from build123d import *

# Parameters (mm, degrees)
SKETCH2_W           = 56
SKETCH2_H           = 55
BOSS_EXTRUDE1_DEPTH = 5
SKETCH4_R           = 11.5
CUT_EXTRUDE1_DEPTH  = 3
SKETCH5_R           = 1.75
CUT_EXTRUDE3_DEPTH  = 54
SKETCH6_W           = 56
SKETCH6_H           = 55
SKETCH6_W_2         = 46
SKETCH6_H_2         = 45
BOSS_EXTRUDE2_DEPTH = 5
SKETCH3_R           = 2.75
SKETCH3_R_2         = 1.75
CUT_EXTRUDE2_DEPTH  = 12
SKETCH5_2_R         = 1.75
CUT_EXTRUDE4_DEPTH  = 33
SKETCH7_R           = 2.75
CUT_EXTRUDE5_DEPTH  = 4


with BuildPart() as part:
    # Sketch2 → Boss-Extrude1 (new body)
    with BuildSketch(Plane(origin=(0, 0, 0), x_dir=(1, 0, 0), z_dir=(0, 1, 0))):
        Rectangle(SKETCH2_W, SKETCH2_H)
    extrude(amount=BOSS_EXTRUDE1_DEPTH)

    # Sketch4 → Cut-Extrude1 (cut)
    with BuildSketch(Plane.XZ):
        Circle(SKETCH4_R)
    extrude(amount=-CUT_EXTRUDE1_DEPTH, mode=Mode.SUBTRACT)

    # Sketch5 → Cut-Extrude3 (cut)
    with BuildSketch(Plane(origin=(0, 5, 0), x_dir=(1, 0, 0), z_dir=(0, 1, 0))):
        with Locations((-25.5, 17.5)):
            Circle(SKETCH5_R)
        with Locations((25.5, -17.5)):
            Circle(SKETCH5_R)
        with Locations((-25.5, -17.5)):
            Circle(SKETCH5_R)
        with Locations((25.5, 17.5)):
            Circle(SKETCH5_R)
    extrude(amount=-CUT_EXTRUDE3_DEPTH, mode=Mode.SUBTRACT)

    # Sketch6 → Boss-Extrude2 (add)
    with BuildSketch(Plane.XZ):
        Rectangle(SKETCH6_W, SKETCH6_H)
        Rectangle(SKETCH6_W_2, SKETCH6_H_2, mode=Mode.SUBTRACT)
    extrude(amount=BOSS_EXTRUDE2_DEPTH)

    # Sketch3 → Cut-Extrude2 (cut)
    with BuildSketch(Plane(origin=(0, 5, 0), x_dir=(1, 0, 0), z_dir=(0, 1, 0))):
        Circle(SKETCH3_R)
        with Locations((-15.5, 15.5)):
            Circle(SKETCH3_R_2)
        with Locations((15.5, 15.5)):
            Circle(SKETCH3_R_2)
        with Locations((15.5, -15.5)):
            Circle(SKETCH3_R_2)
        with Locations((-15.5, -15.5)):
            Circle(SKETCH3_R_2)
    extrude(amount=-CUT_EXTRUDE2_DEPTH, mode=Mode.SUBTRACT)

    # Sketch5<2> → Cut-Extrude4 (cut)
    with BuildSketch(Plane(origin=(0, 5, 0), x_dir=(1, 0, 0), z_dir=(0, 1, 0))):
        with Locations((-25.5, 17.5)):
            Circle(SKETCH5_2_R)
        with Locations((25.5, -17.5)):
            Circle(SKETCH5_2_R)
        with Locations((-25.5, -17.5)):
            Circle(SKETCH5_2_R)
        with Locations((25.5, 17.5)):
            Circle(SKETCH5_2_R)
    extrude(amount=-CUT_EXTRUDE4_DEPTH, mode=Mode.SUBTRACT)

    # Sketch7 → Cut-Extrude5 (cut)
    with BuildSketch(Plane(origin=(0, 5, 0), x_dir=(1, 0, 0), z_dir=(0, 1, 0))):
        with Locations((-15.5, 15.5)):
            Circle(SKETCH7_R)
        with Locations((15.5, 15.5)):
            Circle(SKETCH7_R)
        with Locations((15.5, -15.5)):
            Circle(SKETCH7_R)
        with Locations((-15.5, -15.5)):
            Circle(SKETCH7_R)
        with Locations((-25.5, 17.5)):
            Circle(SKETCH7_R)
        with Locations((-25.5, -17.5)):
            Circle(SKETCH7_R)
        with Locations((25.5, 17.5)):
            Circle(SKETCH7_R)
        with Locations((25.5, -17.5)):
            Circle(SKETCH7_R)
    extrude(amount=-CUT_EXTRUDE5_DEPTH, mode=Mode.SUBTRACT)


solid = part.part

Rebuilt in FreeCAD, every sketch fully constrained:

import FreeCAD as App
import Part
import Sketcher
Q = App.Units.Quantity

doc = App.newDocument("Part")
body = doc.addObject("PartDesign::Body", "Body")

sketch1 = body.newObject("Sketcher::SketchObject", "Sketch")
sketch1.AttachmentSupport = (doc.getObject("XZ_Plane"), [""])
sketch1.MapMode = "FlatFace"
sketch1.addGeometry(Part.LineSegment(App.Vector(-28, -28, 0), App.Vector(-28, 28, 0)), False)
sketch1.addGeometry(Part.LineSegment(App.Vector(-28, 28, 0), App.Vector(28, 28, 0)), False)
sketch1.addGeometry(Part.LineSegment(App.Vector(28, 28, 0), App.Vector(28, -28, 0)), False)
sketch1.addGeometry(Part.LineSegment(App.Vector(28, -28, 0), App.Vector(-28, -28, 0)), False)
sketch1.addConstraint(Sketcher.Constraint("Coincident", 0, 2, 1, 1))
sketch1.addConstraint(Sketcher.Constraint("Coincident", 1, 2, 2, 1))
sketch1.addConstraint(Sketcher.Constraint("Coincident", 2, 2, 3, 1))
sketch1.addConstraint(Sketcher.Constraint("Coincident", 3, 2, 0, 1))
sketch1.addConstraint(Sketcher.Constraint("Vertical", 0))
sketch1.addConstraint(Sketcher.Constraint("Horizontal", 1))
sketch1.addConstraint(Sketcher.Constraint("Vertical", 2))
sketch1.addConstraint(Sketcher.Constraint("Horizontal", 3))
sketch1.addConstraint(Sketcher.Constraint("Symmetric", 0, 2, 2, 2, -1, 1))
sketch1.addConstraint(Sketcher.Constraint("DistanceX", 1, 1, 1, 2, Q("56 mm")))
sketch1.addConstraint(Sketcher.Constraint("DistanceY", 0, 1, 0, 2, Q("55 mm")))
pad1 = body.newObject("PartDesign::Pad", "Pad")
pad1.Profile = sketch1
pad1.Length = 5
pad1.Reversed = True

sketch2 = body.newObject("Sketcher::SketchObject", "Sketch001")
sketch2.AttachmentSupport = (doc.getObject("XZ_Plane"), [""])
sketch2.MapMode = "FlatFace"
sketch2.addGeometry(Part.Circle(App.Vector(0, 0, 0), App.Vector(0, 0, 1), 12), False)
sketch2.addConstraint(Sketcher.Constraint("Coincident", 0, 3, -1, 1))
sketch2.addConstraint(Sketcher.Constraint("Diameter", 0, Q("23 mm")))
pocket1 = body.newObject("PartDesign::Pocket", "Pocket")
pocket1.Profile = sketch2
pocket1.Length = 3

sketch3 = body.newObject("Sketcher::SketchObject", "Sketch002")
sketch3.AttachmentSupport = (doc.getObject("XZ_Plane"), [""])
sketch3.MapMode = "FlatFace"
sketch3.AttachmentOffset = App.Placement(App.Vector(0, 0, -5), App.Rotation())
sketch3.addGeometry(Part.Circle(App.Vector(-25.5, -17.5, 0), App.Vector(0, 0, 1), 1.8), False)
sketch3.addGeometry(Part.Circle(App.Vector(25.5, 17.5, 0), App.Vector(0, 0, 1), 1.8), False)
sketch3.addGeometry(Part.Circle(App.Vector(-25.5, 17.5, 0), App.Vector(0, 0, 1), 1.8), False)
sketch3.addGeometry(Part.Circle(App.Vector(25.5, -17.5, 0), App.Vector(0, 0, 1), 1.8), False)
sketch3.addConstraint(Sketcher.Constraint("Equal", 0, 1))
sketch3.addConstraint(Sketcher.Constraint("Equal", 1, 2))
sketch3.addConstraint(Sketcher.Constraint("Equal", 2, 3))
sketch3.addConstraint(Sketcher.Constraint("Symmetric", 0, 3, 1, 3, -1, 1))
sketch3.addConstraint(Sketcher.Constraint("Symmetric", 2, 3, 3, 3, -1, 1))
sketch3.addConstraint(Sketcher.Constraint("Symmetric", 1, 3, 2, 3, -2))
sketch3.addConstraint(Sketcher.Constraint("Diameter", 0, Q("3.5 mm")))
sketch3.addConstraint(Sketcher.Constraint("DistanceX", 0, 3, 1, 3, Q("51 mm")))
sketch3.addConstraint(Sketcher.Constraint("DistanceY", 0, 3, 1, 3, Q("35 mm")))
pocket2 = body.newObject("PartDesign::Pocket", "Pocket001")
pocket2.Profile = sketch3
pocket2.Length = 54
pocket2.Reversed = True

sketch4 = body.newObject("Sketcher::SketchObject", "Sketch003")
sketch4.AttachmentSupport = (doc.getObject("XZ_Plane"), [""])
sketch4.MapMode = "FlatFace"
sketch4.addGeometry(Part.LineSegment(App.Vector(-28, 28, 0), App.Vector(-28, -28, 0)), False)
sketch4.addGeometry(Part.LineSegment(App.Vector(-28, -28, 0), App.Vector(28, -28, 0)), False)
sketch4.addGeometry(Part.LineSegment(App.Vector(28, -28, 0), App.Vector(28, 28, 0)), False)
sketch4.addGeometry(Part.LineSegment(App.Vector(28, 28, 0), App.Vector(-28, 28, 0)), False)
sketch4.addGeometry(Part.LineSegment(App.Vector(23, -22, 0), App.Vector(-23, -22, 0)), False)
sketch4.addGeometry(Part.LineSegment(App.Vector(-23, -22, 0), App.Vector(-23, 22, 0)), False)
sketch4.addGeometry(Part.LineSegment(App.Vector(-23, 22, 0), App.Vector(23, 22, 0)), False)
sketch4.addGeometry(Part.LineSegment(App.Vector(23, 22, 0), App.Vector(23, -22, 0)), False)
sketch4.addConstraint(Sketcher.Constraint("Coincident", 0, 2, 1, 1))
sketch4.addConstraint(Sketcher.Constraint("Coincident", 1, 2, 2, 1))
sketch4.addConstraint(Sketcher.Constraint("Coincident", 2, 2, 3, 1))
sketch4.addConstraint(Sketcher.Constraint("Coincident", 3, 2, 0, 1))
sketch4.addConstraint(Sketcher.Constraint("Coincident", 4, 2, 5, 1))
sketch4.addConstraint(Sketcher.Constraint("Coincident", 5, 2, 6, 1))
sketch4.addConstraint(Sketcher.Constraint("Coincident", 6, 2, 7, 1))
sketch4.addConstraint(Sketcher.Constraint("Coincident", 7, 2, 4, 1))
sketch4.addConstraint(Sketcher.Constraint("Vertical", 0))
sketch4.addConstraint(Sketcher.Constraint("Horizontal", 1))
sketch4.addConstraint(Sketcher.Constraint("Vertical", 2))
sketch4.addConstraint(Sketcher.Constraint("Horizontal", 3))
sketch4.addConstraint(Sketcher.Constraint("Horizontal", 4))
sketch4.addConstraint(Sketcher.Constraint("Vertical", 5))
sketch4.addConstraint(Sketcher.Constraint("Horizontal", 6))
sketch4.addConstraint(Sketcher.Constraint("Vertical", 7))
sketch4.addConstraint(Sketcher.Constraint("Symmetric", 0, 2, 2, 2, -1, 1))
sketch4.addConstraint(Sketcher.Constraint("Symmetric", 4, 2, 6, 2, -1, 1))
sketch4.addConstraint(Sketcher.Constraint("DistanceX", 1, 1, 1, 2, Q("56 mm")))
sketch4.addConstraint(Sketcher.Constraint("DistanceX", 4, 2, 4, 1, Q("46 mm")))
sketch4.addConstraint(Sketcher.Constraint("DistanceY", 0, 2, 0, 1, Q("55 mm")))
sketch4.addConstraint(Sketcher.Constraint("DistanceY", 5, 1, 5, 2, Q("45 mm")))
pad2 = body.newObject("PartDesign::Pad", "Pad001")
pad2.Profile = sketch4
pad2.Length = 5

sketch5 = body.newObject("Sketcher::SketchObject", "Sketch004")
sketch5.AttachmentSupport = (doc.getObject("XZ_Plane"), [""])
sketch5.MapMode = "FlatFace"
sketch5.AttachmentOffset = App.Placement(App.Vector(0, 0, -5), App.Rotation())
sketch5.addGeometry(Part.Circle(App.Vector(0, 0, 0), App.Vector(0, 0, 1), 2.8), False)
sketch5.addGeometry(Part.Circle(App.Vector(-15.5, -15.5, 0), App.Vector(0, 0, 1), 1.8), False)
sketch5.addGeometry(Part.Circle(App.Vector(15.5, -15.5, 0), App.Vector(0, 0, 1), 1.8), False)
sketch5.addGeometry(Part.Circle(App.Vector(15.5, 15.5, 0), App.Vector(0, 0, 1), 1.8), False)
sketch5.addGeometry(Part.Circle(App.Vector(-15.5, 15.5, 0), App.Vector(0, 0, 1), 1.8), False)
sketch5.addConstraint(Sketcher.Constraint("Coincident", 0, 3, -1, 1))
sketch5.addConstraint(Sketcher.Constraint("Equal", 1, 2))
sketch5.addConstraint(Sketcher.Constraint("Equal", 2, 3))
sketch5.addConstraint(Sketcher.Constraint("Equal", 3, 4))
sketch5.addConstraint(Sketcher.Constraint("Symmetric", 1, 3, 3, 3, -1, 1))
sketch5.addConstraint(Sketcher.Constraint("Symmetric", 2, 3, 4, 3, -1, 1))
sketch5.addConstraint(Sketcher.Constraint("Symmetric", 1, 3, 2, 3, -2))
sketch5.addConstraint(Sketcher.Constraint("Diameter", 0, Q("5.5 mm")))
sketch5.addConstraint(Sketcher.Constraint("Diameter", 1, Q("3.5 mm")))
sketch5.addConstraint(Sketcher.Constraint("DistanceX", 1, 3, 2, 3, Q("31 mm")))
sketch5.addConstraint(Sketcher.Constraint("DistanceY", 2, 3, 3, 3, Q("31 mm")))
pocket3 = body.newObject("PartDesign::Pocket", "Pocket002")
pocket3.Profile = sketch5
pocket3.Length = 12
pocket3.Reversed = True

sketch6 = body.newObject("Sketcher::SketchObject", "Sketch005")
sketch6.AttachmentSupport = (doc.getObject("XZ_Plane"), [""])
sketch6.MapMode = "FlatFace"
sketch6.AttachmentOffset = App.Placement(App.Vector(0, 0, -5), App.Rotation())
sketch6.addGeometry(Part.Circle(App.Vector(-25.5, -17.5, 0), App.Vector(0, 0, 1), 1.8), False)
sketch6.addGeometry(Part.Circle(App.Vector(25.5, 17.5, 0), App.Vector(0, 0, 1), 1.8), False)
sketch6.addGeometry(Part.Circle(App.Vector(-25.5, 17.5, 0), App.Vector(0, 0, 1), 1.8), False)
sketch6.addGeometry(Part.Circle(App.Vector(25.5, -17.5, 0), App.Vector(0, 0, 1), 1.8), False)
sketch6.addConstraint(Sketcher.Constraint("Equal", 0, 1))
sketch6.addConstraint(Sketcher.Constraint("Equal", 1, 2))
sketch6.addConstraint(Sketcher.Constraint("Equal", 2, 3))
sketch6.addConstraint(Sketcher.Constraint("Symmetric", 0, 3, 1, 3, -1, 1))
sketch6.addConstraint(Sketcher.Constraint("Symmetric", 2, 3, 3, 3, -1, 1))
sketch6.addConstraint(Sketcher.Constraint("Symmetric", 1, 3, 2, 3, -2))
sketch6.addConstraint(Sketcher.Constraint("Diameter", 0, Q("3.5 mm")))
sketch6.addConstraint(Sketcher.Constraint("DistanceX", 0, 3, 1, 3, Q("51 mm")))
sketch6.addConstraint(Sketcher.Constraint("DistanceY", 0, 3, 1, 3, Q("35 mm")))
pocket4 = body.newObject("PartDesign::Pocket", "Pocket003")
pocket4.Profile = sketch6
pocket4.Length = 33
pocket4.Reversed = True

sketch7 = body.newObject("Sketcher::SketchObject", "Sketch006")
sketch7.AttachmentSupport = (doc.getObject("XZ_Plane"), [""])
sketch7.MapMode = "FlatFace"
sketch7.AttachmentOffset = App.Placement(App.Vector(0, 0, -5), App.Rotation())
sketch7.addGeometry(Part.Circle(App.Vector(-15.5, -15.5, 0), App.Vector(0, 0, 1), 2.8), False)
sketch7.addGeometry(Part.Circle(App.Vector(15.5, -15.5, 0), App.Vector(0, 0, 1), 2.8), False)
sketch7.addGeometry(Part.Circle(App.Vector(15.5, 15.5, 0), App.Vector(0, 0, 1), 2.8), False)
sketch7.addGeometry(Part.Circle(App.Vector(-15.5, 15.5, 0), App.Vector(0, 0, 1), 2.8), False)
sketch7.addGeometry(Part.Circle(App.Vector(-25.5, -17.5, 0), App.Vector(0, 0, 1), 2.8), False)
sketch7.addGeometry(Part.Circle(App.Vector(-25.5, 17.5, 0), App.Vector(0, 0, 1), 2.8), False)
sketch7.addGeometry(Part.Circle(App.Vector(25.5, -17.5, 0), App.Vector(0, 0, 1), 2.8), False)
sketch7.addGeometry(Part.Circle(App.Vector(25.5, 17.5, 0), App.Vector(0, 0, 1), 2.8), False)
sketch7.addConstraint(Sketcher.Constraint("Equal", 0, 1))
sketch7.addConstraint(Sketcher.Constraint("Equal", 1, 2))
sketch7.addConstraint(Sketcher.Constraint("Equal", 2, 3))
sketch7.addConstraint(Sketcher.Constraint("Equal", 3, 4))
sketch7.addConstraint(Sketcher.Constraint("Equal", 4, 5))
sketch7.addConstraint(Sketcher.Constraint("Equal", 5, 6))
sketch7.addConstraint(Sketcher.Constraint("Equal", 6, 7))
sketch7.addConstraint(Sketcher.Constraint("Symmetric", 0, 3, 2, 3, -1, 1))
sketch7.addConstraint(Sketcher.Constraint("Symmetric", 1, 3, 3, 3, -1, 1))
sketch7.addConstraint(Sketcher.Constraint("Symmetric", 5, 3, 6, 3, -1, 1))
sketch7.addConstraint(Sketcher.Constraint("Symmetric", 4, 3, 7, 3, -1, 1))
sketch7.addConstraint(Sketcher.Constraint("Symmetric", 0, 3, 1, 3, -2))
sketch7.addConstraint(Sketcher.Constraint("Symmetric", 4, 3, 6, 3, -2))
sketch7.addConstraint(Sketcher.Constraint("Diameter", 0, Q("5.5 mm")))
sketch7.addConstraint(Sketcher.Constraint("DistanceX", 0, 3, 1, 3, Q("31 mm")))
sketch7.addConstraint(Sketcher.Constraint("DistanceY", 1, 3, 2, 3, Q("31 mm")))
sketch7.addConstraint(Sketcher.Constraint("DistanceX", 4, 3, 0, 3, Q("10 mm")))
sketch7.addConstraint(Sketcher.Constraint("DistanceY", 4, 3, 0, 3, Q("2 mm")))
pocket5 = body.newObject("PartDesign::Pocket", "Pocket004")
pocket5.Profile = sketch7
pocket5.Length = 4
pocket5.Reversed = True

doc.recompute()
